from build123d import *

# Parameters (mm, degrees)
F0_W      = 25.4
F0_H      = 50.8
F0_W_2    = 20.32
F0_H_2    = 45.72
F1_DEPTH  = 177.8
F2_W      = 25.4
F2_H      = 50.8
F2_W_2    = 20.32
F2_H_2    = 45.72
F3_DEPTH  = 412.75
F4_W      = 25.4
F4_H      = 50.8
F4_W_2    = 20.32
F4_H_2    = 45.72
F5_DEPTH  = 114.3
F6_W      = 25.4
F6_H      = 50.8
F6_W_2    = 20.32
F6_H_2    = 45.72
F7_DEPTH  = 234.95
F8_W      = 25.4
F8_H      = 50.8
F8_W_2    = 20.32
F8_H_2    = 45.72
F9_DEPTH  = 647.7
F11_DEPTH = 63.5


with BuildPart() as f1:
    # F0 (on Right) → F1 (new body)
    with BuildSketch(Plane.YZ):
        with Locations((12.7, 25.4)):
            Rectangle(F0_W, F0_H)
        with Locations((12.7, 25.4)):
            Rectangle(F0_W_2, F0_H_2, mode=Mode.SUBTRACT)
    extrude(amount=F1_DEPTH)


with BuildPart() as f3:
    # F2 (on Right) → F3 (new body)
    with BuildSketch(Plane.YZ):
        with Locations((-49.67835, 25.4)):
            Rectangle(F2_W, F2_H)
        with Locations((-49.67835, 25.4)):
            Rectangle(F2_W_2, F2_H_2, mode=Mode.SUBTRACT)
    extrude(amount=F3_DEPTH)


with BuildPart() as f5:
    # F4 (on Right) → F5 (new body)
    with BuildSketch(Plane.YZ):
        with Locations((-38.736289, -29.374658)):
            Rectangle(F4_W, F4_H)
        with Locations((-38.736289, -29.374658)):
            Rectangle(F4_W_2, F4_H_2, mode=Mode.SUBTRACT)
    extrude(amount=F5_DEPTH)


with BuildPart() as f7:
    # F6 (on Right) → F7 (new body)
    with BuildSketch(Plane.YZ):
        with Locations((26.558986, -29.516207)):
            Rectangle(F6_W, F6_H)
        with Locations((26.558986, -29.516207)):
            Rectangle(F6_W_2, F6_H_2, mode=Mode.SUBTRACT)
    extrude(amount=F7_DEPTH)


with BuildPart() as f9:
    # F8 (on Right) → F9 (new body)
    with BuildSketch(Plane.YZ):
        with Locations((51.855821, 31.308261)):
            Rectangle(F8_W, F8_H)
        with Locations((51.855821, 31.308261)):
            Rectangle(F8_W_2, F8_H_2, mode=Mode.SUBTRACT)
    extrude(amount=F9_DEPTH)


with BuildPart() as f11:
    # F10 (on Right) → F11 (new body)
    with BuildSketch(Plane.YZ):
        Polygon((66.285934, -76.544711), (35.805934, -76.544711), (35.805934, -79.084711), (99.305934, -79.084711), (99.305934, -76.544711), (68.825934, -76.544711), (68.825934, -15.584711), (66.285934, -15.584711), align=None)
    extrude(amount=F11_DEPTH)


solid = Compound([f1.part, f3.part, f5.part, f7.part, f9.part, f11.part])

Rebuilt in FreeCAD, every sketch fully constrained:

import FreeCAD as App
import Part
import Sketcher
Q = App.Units.Quantity


def add_polygon(sketch, points):
    """Adds a closed chain of lines whose ends are joined by coincident constraints."""
    first, n = sketch.GeometryCount, len(points)
    for a, b in zip(points, points[1:] + points[:1]):
        sketch.addGeometry(Part.LineSegment(App.Vector(*a, 0), App.Vector(*b, 0)), False)
    for i in range(n):
        sketch.addConstraint(Sketcher.Constraint("Coincident", first + i, 2, first + (i + 1) % n, 1))

doc = App.newDocument("Part")
body = doc.addObject("PartDesign::Body", "Body")

# Sketch on YZ plane
sketch1 = body.newObject("Sketcher::SketchObject", "Sketch")
sketch1.AttachmentSupport = (doc.getObject("YZ_Plane"), [""])
sketch1.MapMode = "FlatFace"
add_polygon(sketch1, [(0, 51), (0, 0), (25, 0), (25, 51)])  # lines 0-3
add_polygon(sketch1, [(23, 3), (3, 3), (3, 48), (23, 48)])  # lines 4-7
sketch1.addConstraint(Sketcher.Constraint("Vertical", 0))
sketch1.addConstraint(Sketcher.Constraint("Horizontal", 1))
sketch1.addConstraint(Sketcher.Constraint("Vertical", 2))
sketch1.addConstraint(Sketcher.Constraint("Horizontal", 3))
sketch1.addConstraint(Sketcher.Constraint("Horizontal", 4))
sketch1.addConstraint(Sketcher.Constraint("Vertical", 5))
sketch1.addConstraint(Sketcher.Constraint("Horizontal", 6))
sketch1.addConstraint(Sketcher.Constraint("Vertical", 7))
sketch1.addConstraint(Sketcher.Constraint("Coincident", 0, 2, -1, 1))
sketch1.addConstraint(Sketcher.Constraint("DistanceX", 1, 1, 1, 2, Q("1 in")))
sketch1.addConstraint(Sketcher.Constraint("DistanceY", 0, 2, 0, 1, Q("2 in")))
sketch1.addConstraint(Sketcher.Constraint("DistanceX", 4, 2, 4, 1, Q("0.8 in")))
sketch1.addConstraint(Sketcher.Constraint("DistanceY", 5, 1, 5, 2, Q("1.8 in")))
sketch1.addConstraint(Sketcher.Constraint("DistanceX", -1, 1, 4, 2, Q("0.1 in")))
sketch1.addConstraint(Sketcher.Constraint("DistanceY", -1, 1, 4, 2, Q("0.1 in")))
pad1 = body.newObject("PartDesign::Pad", "Pad")
pad1.Profile = sketch1
pad1.Length = Q("7 in")
body2 = doc.addObject("PartDesign::Body", "Body001")

# Sketch on YZ plane
sketch2 = body2.newObject("Sketcher::SketchObject", "Sketch001")
sketch2.AttachmentSupport = (doc.getObject("YZ_Plane001"), [""])
sketch2.MapMode = "FlatFace"
add_polygon(sketch2, [(-62, 51), (-62, 0), (-37, 0), (-37, 51)])  # lines 0-3
add_polygon(sketch2, [(-40, 3), (-60, 3), (-60, 48), (-40, 48)])  # lines 4-7
sketch2.addConstraint(Sketcher.Constraint("Vertical", 0))
sketch2.addConstraint(Sketcher.Constraint("Horizontal", 1))
sketch2.addConstraint(Sketcher.Constraint("Vertical", 2))
sketch2.addConstraint(Sketcher.Constraint("Horizontal", 3))
sketch2.addConstraint(Sketcher.Constraint("Horizontal", 4))
sketch2.addConstraint(Sketcher.Constraint("Vertical", 5))
sketch2.addConstraint(Sketcher.Constraint("Horizontal", 6))
sketch2.addConstraint(Sketcher.Constraint("Vertical", 7))
sketch2.addConstraint(Sketcher.Constraint("PointOnObject", 0, 2, -1))
sketch2.addConstraint(Sketcher.Constraint("DistanceX", 1, 1, 1, 2, Q("1 in")))
sketch2.addConstraint(Sketcher.Constraint("DistanceY", 0, 2, 0, 1, Q("2 in")))
sketch2.addConstraint(Sketcher.Constraint("DistanceX", 4, 2, 4, 1, Q("0.8 in")))
sketch2.addConstraint(Sketcher.Constraint("DistanceY", 5, 1, 5, 2, Q("1.8 in")))
sketch2.addConstraint(Sketcher.Constraint("DistanceY", -1, 1, 4, 2, Q("0.1 in")))
sketch2.addConstraint(Sketcher.Constraint("DistanceX", 0, 2, 4, 2, Q("0.1 in")))
sketch2.addConstraint(Sketcher.Constraint("DistanceX", 0, 2, -1, 1, Q("62.37835 mm")))
pad2 = body2.newObject("PartDesign::Pad", "Pad001")
pad2.Profile = sketch2
pad2.Length = Q("16.25 in")
body3 = doc.addObject("PartDesign::Body", "Body002")

# Sketch on YZ plane
sketch3 = body3.newObject("Sketcher::SketchObject", "Sketch002")
sketch3.AttachmentSupport = (doc.getObject("YZ_Plane002"), [""])
sketch3.MapMode = "FlatFace"
add_polygon(sketch3, [(-51, -4), (-51, -55), (-26, -55), (-26, -4)])  # lines 0-3
add_polygon(sketch3, [(-29, -52), (-49, -52), (-49, -7), (-29, -7)])  # lines 4-7
sketch3.addConstraint(Sketcher.Constraint("Vertical", 0))
sketch3.addConstraint(Sketcher.Constraint("Horizontal", 1))
sketch3.addConstraint(Sketcher.Constraint("Vertical", 2))
sketch3.addConstraint(Sketcher.Constraint("Horizontal", 3))
sketch3.addConstraint(Sketcher.Constraint("Horizontal", 4))
sketch3.addConstraint(Sketcher.Constraint("Vertical", 5))
sketch3.addConstraint(Sketcher.Constraint("Horizontal", 6))
sketch3.addConstraint(Sketcher.Constraint("Vertical", 7))
sketch3.addConstraint(Sketcher.Constraint("DistanceX", 1, 1, 1, 2, Q("1 in")))
sketch3.addConstraint(Sketcher.Constraint("DistanceY", 0, 2, 0, 1, Q("2 in")))
sketch3.addConstraint(Sketcher.Constraint("DistanceX", 4, 2, 4, 1, Q("0.8 in")))
sketch3.addConstraint(Sketcher.Constraint("DistanceY", 5, 1, 5, 2, Q("1.8 in")))
sketch3.addConstraint(Sketcher.Constraint("DistanceX", 0, 2, 4, 2, Q("0.1 in")))
sketch3.addConstraint(Sketcher.Constraint("DistanceY", 0, 2, 4, 2, Q("0.1 in")))
sketch3.addConstraint(Sketcher.Constraint("DistanceX", 0, 2, -1, 1, Q("51.436289 mm")))
sketch3.addConstraint(Sketcher.Constraint("DistanceY", 0, 2, -1, 1, Q("54.774658 mm")))
pad3 = body3.newObject("PartDesign::Pad", "Pad002")
pad3.Profile = sketch3
pad3.Length = Q("4.5 in")
body4 = doc.addObject("PartDesign::Body", "Body003")

# Sketch on YZ plane
sketch4 = body4.newObject("Sketcher::SketchObject", "Sketch003")
sketch4.AttachmentSupport = (doc.getObject("YZ_Plane003"), [""])
sketch4.MapMode = "FlatFace"
add_polygon(sketch4, [(14, -4), (14, -55), (39, -55), (39, -4)])  # lines 0-3
add_polygon(sketch4, [(37, -52), (16, -52), (16, -7), (37, -7)])  # lines 4-7
sketch4.addConstraint(Sketcher.Constraint("Vertical", 0))
sketch4.addConstraint(Sketcher.Constraint("Horizontal", 1))
sketch4.addConstraint(Sketcher.Constraint("Vertical", 2))
sketch4.addConstraint(Sketcher.Constraint("Horizontal", 3))
sketch4.addConstraint(Sketcher.Constraint("Horizontal", 4))
sketch4.addConstraint(Sketcher.Constraint("Vertical", 5))
sketch4.addConstraint(Sketcher.Constraint("Horizontal", 6))
sketch4.addConstraint(Sketcher.Constraint("Vertical", 7))
sketch4.addConstraint(Sketcher.Constraint("DistanceX", 1, 1, 1, 2, Q("1 in")))
sketch4.addConstraint(Sketcher.Constraint("DistanceY", 0, 2, 0, 1, Q("2 in")))
sketch4.addConstraint(Sketcher.Constraint("DistanceX", 4, 2, 4, 1, Q("0.8 in")))
sketch4.addConstraint(Sketcher.Constraint("DistanceY", 5, 1, 5, 2, Q("1.8 in")))
sketch4.addConstraint(Sketcher.Constraint("DistanceX", 0, 2, 4, 2, Q("0.1 in")))
sketch4.addConstraint(Sketcher.Constraint("DistanceY", 0, 2, 4, 2, Q("0.1 in")))
sketch4.addConstraint(Sketcher.Constraint("DistanceX", -1, 1, 0, 2, Q("13.858986 mm")))
sketch4.addConstraint(Sketcher.Constraint("DistanceY", 0, 2, -1, 1, Q("54.916207 mm")))
pad4 = body4.newObject("PartDesign::Pad", "Pad003")
pad4.Profile = sketch4
pad4.Length = Q("9.25 in")
body5 = doc.addObject("PartDesign::Body", "Body004")

# Sketch on YZ plane
sketch5 = body5.newObject("Sketcher::SketchObject", "Sketch004")
sketch5.AttachmentSupport = (doc.getObject("YZ_Plane004"), [""])
sketch5.MapMode = "FlatFace"
add_polygon(sketch5, [(39, 57), (39, 6), (65, 6), (65, 57)])  # lines 0-3
add_polygon(sketch5, [(62, 8), (42, 8), (42, 54), (62, 54)])  # lines 4-7
sketch5.addConstraint(Sketcher.Constraint("Vertical", 0))
sketch5.addConstraint(Sketcher.Constraint("Horizontal", 1))
sketch5.addConstraint(Sketcher.Constraint("Vertical", 2))
sketch5.addConstraint(Sketcher.Constraint("Horizontal", 3))
sketch5.addConstraint(Sketcher.Constraint("Horizontal", 4))
sketch5.addConstraint(Sketcher.Constraint("Vertical", 5))
sketch5.addConstraint(Sketcher.Constraint("Horizontal", 6))
sketch5.addConstraint(Sketcher.Constraint("Vertical", 7))
sketch5.addConstraint(Sketcher.Constraint("DistanceX", 1, 1, 1, 2, Q("1 in")))
sketch5.addConstraint(Sketcher.Constraint("DistanceY", 0, 2, 0, 1, Q("2 in")))
sketch5.addConstraint(Sketcher.Constraint("DistanceX", 4, 2, 4, 1, Q("0.8 in")))
sketch5.addConstraint(Sketcher.Constraint("DistanceY", 5, 1, 5, 2, Q("1.8 in")))
sketch5.addConstraint(Sketcher.Constraint("DistanceX", 0, 2, 4, 2, Q("0.1 in")))
sketch5.addConstraint(Sketcher.Constraint("DistanceY", 0, 2, 4, 2, Q("0.1 in")))
sketch5.addConstraint(Sketcher.Constraint("DistanceX", -1, 1, 0, 2, Q("39.155821 mm")))
sketch5.addConstraint(Sketcher.Constraint("DistanceY", -1, 1, 0, 2, Q("5.908261 mm")))
pad5 = body5.newObject("PartDesign::Pad", "Pad004")
pad5.Profile = sketch5
pad5.Length = Q("25.5 in")
body6 = doc.addObject("PartDesign::Body", "Body005")

# Sketch on YZ plane
sketch6 = body6.newObject("Sketcher::SketchObject", "Sketch005")
sketch6.AttachmentSupport = (doc.getObject("YZ_Plane005"), [""])
sketch6.MapMode = "FlatFace"
add_polygon(sketch6, [(66.3, -76.5), (35.8, -76.5), (35.8, -79.1), (99.3, -79.1), (99.3, -76.5), (68.8, -76.5), (68.8, -15.6), (66.3, -15.6)])  # lines 0-7
sketch6.addConstraint(Sketcher.Constraint("Horizontal", 0))
sketch6.addConstraint(Sketcher.Constraint("Vertical", 1))
sketch6.addConstraint(Sketcher.Constraint("Horizontal", 2))
sketch6.addConstraint(Sketcher.Constraint("Vertical", 3))
sketch6.addConstraint(Sketcher.Constraint("Horizontal", 4))
sketch6.addConstraint(Sketcher.Constraint("Vertical", 5))
sketch6.addConstraint(Sketcher.Constraint("Horizontal", 6))
sketch6.addConstraint(Sketcher.Constraint("Vertical", 7))
sketch6.addConstraint(Sketcher.Constraint("Horizontal", 0, 2, 3, 2))
sketch6.addConstraint(Sketcher.Constraint("Equal", 0, 4))
sketch6.addConstraint(Sketcher.Constraint("Equal", 6, 1))
sketch6.addConstraint(Sketcher.Constraint("DistanceX", 0, 2, 0, 1, Q("1.2 in")))
sketch6.addConstraint(Sketcher.Constraint("DistanceX", 2, 1, 2, 2, Q("2.5 in")))
sketch6.addConstraint(Sketcher.Constraint("DistanceY", 5, 1, 5, 2, Q("2.4 in")))
sketch6.addConstraint(Sketcher.Constraint("DistanceY", 0, 2, -1, 1, Q("76.544711 mm")))
sketch6.addConstraint(Sketcher.Constraint("DistanceX", -1, 1, 0, 2, Q("35.805934 mm")))
pad6 = body6.newObject("PartDesign::Pad", "Pad005")
pad6.Profile = sketch6
pad6.Length = Q("2.5 in")

doc.recompute()
